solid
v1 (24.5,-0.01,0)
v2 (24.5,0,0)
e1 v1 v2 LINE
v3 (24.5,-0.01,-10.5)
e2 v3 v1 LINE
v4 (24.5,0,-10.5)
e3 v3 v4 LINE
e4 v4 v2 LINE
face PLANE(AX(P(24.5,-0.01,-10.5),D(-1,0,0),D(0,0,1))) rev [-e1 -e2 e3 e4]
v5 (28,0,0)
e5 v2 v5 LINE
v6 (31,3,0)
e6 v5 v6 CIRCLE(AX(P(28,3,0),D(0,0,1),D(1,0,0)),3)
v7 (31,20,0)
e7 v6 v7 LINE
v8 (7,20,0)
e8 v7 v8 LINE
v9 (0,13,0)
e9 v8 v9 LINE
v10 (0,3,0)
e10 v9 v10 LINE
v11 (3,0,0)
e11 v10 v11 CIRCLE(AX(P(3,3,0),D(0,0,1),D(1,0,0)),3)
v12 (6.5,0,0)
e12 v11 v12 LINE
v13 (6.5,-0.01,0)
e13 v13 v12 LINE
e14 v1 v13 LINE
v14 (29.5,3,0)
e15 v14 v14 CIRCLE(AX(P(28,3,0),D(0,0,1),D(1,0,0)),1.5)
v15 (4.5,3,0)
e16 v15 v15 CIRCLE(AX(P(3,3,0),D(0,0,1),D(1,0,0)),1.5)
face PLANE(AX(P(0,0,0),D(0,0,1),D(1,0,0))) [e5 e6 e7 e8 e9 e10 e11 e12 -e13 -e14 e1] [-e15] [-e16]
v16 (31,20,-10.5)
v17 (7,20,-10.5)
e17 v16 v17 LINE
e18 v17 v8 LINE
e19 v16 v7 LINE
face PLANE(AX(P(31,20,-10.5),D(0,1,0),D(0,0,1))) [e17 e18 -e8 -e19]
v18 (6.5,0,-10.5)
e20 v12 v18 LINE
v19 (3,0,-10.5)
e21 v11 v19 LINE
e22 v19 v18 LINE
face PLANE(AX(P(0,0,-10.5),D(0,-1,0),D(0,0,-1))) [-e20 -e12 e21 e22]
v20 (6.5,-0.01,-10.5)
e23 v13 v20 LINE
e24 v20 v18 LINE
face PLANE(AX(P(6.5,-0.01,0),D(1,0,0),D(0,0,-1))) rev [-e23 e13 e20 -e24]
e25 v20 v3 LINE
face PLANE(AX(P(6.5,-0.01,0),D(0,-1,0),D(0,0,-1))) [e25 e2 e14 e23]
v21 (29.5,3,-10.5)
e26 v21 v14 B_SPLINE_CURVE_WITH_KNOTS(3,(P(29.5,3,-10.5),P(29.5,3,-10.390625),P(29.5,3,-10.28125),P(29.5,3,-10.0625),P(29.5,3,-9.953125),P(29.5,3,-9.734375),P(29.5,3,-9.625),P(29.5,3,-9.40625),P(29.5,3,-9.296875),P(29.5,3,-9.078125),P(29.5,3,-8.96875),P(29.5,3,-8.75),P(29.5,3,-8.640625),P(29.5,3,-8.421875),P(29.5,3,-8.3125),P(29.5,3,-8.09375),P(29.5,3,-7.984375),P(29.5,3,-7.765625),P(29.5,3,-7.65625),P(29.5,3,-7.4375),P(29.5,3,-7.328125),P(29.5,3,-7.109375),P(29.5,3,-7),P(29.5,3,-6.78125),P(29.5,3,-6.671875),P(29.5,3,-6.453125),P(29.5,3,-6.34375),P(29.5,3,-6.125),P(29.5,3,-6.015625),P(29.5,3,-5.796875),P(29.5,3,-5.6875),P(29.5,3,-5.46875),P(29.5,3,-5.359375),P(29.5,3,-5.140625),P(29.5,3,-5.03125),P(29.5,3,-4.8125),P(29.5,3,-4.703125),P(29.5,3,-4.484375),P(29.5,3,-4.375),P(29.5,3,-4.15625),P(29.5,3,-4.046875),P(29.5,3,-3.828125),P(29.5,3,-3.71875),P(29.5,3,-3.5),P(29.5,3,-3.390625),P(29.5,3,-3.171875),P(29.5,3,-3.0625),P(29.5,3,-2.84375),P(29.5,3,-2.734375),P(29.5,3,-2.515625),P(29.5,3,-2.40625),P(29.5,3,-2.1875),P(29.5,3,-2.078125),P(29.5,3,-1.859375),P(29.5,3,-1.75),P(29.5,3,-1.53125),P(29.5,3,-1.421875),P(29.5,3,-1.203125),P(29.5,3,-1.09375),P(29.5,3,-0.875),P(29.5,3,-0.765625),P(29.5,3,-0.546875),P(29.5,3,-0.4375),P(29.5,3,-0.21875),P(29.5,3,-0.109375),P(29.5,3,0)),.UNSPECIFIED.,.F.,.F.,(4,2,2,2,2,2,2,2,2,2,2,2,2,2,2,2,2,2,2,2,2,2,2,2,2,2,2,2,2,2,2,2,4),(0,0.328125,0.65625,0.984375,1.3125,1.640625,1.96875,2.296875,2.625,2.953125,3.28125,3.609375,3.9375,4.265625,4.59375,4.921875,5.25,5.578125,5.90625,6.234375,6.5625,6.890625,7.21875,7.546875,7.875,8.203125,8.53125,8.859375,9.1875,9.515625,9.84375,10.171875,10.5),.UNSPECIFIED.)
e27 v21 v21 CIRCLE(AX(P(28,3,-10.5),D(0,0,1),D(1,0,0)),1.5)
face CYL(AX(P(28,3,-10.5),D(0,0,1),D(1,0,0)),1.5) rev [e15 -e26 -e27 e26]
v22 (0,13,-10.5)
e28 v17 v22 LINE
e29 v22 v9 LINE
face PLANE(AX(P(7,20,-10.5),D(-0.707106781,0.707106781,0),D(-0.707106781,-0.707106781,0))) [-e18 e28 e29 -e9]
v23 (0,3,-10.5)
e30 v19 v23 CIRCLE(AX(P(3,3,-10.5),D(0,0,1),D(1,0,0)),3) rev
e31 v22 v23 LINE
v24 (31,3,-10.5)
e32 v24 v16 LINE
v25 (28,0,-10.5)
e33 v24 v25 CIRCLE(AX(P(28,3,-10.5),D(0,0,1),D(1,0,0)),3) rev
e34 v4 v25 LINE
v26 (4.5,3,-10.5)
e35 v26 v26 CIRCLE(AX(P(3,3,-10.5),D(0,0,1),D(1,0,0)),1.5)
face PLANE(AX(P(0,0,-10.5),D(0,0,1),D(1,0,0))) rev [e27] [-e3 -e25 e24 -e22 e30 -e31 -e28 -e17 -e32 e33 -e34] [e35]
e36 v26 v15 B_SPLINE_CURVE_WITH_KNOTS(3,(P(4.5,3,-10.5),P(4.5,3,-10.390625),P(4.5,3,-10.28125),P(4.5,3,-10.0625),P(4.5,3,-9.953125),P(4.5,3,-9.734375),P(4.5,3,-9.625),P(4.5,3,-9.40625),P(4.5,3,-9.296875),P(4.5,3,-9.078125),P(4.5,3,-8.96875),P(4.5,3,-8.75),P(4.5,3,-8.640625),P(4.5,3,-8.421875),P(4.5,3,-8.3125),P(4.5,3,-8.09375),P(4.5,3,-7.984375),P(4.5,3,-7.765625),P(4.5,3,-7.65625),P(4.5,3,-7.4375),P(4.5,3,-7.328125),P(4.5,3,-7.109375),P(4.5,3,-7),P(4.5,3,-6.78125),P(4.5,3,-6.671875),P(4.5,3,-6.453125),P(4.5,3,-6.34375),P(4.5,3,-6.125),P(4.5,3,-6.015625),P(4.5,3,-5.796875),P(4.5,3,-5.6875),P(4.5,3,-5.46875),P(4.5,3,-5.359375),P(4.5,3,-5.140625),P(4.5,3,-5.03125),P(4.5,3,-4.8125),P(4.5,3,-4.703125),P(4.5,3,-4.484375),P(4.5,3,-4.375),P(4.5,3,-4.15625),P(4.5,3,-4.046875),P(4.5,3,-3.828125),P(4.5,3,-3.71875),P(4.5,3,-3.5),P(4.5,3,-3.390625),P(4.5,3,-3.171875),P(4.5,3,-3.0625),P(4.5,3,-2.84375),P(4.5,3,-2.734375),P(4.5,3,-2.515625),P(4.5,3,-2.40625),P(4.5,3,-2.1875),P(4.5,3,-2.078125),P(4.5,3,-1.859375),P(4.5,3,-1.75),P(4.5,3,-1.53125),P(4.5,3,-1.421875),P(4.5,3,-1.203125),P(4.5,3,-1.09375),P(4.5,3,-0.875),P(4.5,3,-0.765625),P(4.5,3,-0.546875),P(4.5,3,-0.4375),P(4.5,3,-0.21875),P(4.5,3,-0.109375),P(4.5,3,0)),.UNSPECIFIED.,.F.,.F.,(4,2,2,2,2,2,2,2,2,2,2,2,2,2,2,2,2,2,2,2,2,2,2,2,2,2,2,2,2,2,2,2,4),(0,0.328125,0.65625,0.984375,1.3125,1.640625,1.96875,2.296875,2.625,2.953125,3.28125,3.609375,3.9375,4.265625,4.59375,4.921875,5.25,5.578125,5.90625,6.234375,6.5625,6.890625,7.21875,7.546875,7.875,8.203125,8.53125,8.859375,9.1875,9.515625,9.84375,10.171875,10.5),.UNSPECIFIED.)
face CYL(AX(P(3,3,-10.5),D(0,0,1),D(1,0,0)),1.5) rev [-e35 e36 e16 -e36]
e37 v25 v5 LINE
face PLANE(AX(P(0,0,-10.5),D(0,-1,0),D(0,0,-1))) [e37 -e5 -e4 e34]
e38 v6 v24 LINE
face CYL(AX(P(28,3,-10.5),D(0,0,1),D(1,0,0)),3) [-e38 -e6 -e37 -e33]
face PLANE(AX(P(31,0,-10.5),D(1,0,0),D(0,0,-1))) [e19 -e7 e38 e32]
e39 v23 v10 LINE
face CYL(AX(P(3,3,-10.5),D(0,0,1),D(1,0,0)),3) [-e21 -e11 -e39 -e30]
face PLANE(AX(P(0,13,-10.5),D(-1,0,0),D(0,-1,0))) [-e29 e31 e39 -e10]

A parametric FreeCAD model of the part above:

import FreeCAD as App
import Part
import Sketcher


def edges_at(feature, points):
    """Names of the edges that pass closest to the given points."""
    edges = feature.Shape.Edges
    near = lambda p: min(range(len(edges)), key=lambda i: edges[i].distToShape(Part.Vertex(*p))[0])
    return sorted({f"Edge{near(p) + 1}" for p in points})

doc = App.newDocument("Part")
body = doc.addObject("PartDesign::Body", "Body")

# Sketch on XY plane
sketch1 = doc.addObject("Sketcher::SketchObject", "Sketch")
body.addObject(sketch1)
sketch1.AttachmentSupport = (doc.XY_Plane, [""])
sketch1.MapMode = "FlatFace"
sketch1.addGeometry([
    Part.LineSegment(App.Vector(0, 0, 0), App.Vector(31, 0, 0)),  # 0
    Part.LineSegment(App.Vector(31, 0, 0), App.Vector(31, 20, 0)),  # 1
    Part.LineSegment(App.Vector(31, 20, 0), App.Vector(7, 20, 0)),  # 2
    Part.LineSegment(App.Vector(7, 20, 0), App.Vector(0, 13, 0)),  # 3
    Part.LineSegment(App.Vector(0, 13, 0), App.Vector(0, 0, 0)),  # 4
], False)
sketch1.addConstraint([
    Sketcher.Constraint("Coincident", 0, 2, 1, 1),
    Sketcher.Constraint("Coincident", 1, 2, 2, 1),
    Sketcher.Constraint("Coincident", 2, 2, 3, 1),
    Sketcher.Constraint("Coincident", 3, 2, 4, 1),
    Sketcher.Constraint("Coincident", 4, 2, 0, 1),
    Sketcher.Constraint("Horizontal", 0),
    Sketcher.Constraint("Vertical", 1),
    Sketcher.Constraint("Horizontal", 2),
    Sketcher.Constraint("Vertical", 4),
    Sketcher.Constraint("Coincident", 4, 2, -1, 1),
    Sketcher.Constraint("DistanceX", 0, 1, 0, 2, 31.0),
    Sketcher.Constraint("DistanceX", 2, 2, 2, 1, 24.0),
    Sketcher.Constraint("DistanceY", 1, 1, 1, 2, 20.0),
    Sketcher.Constraint("DistanceY", 4, 2, 4, 1, 13.0),
])
pad1 = doc.addObject("PartDesign::Pad", "Pad")
body.addObject(pad1)
pad1.Profile = sketch1
pad1.Length = 10.5
pad1.Reversed = True

# Sketch on XY plane
sketch2 = doc.addObject("Sketcher::SketchObject", "Sketch001")
body.addObject(sketch2)
sketch2.AttachmentSupport = (doc.XY_Plane, [""])
sketch2.MapMode = "FlatFace"
sketch2.addGeometry([
    Part.Circle(App.Vector(3, 3, 0), App.Vector(0, 0, 1), 1.5),
    Part.Circle(App.Vector(28, 3, 0), App.Vector(0, 0, 1), 1.5),
], False)
sketch2.addConstraint([
    Sketcher.Constraint("Equal", 0, 1),
    Sketcher.Constraint("Horizontal", 0, 3, 1, 3),
    Sketcher.Constraint("Diameter", 0, 3.0),
    Sketcher.Constraint("DistanceX", -1, 1, 0, 3, 3.0),
    Sketcher.Constraint("DistanceY", -1, 1, 0, 3, 3.0),
    Sketcher.Constraint("DistanceX", -1, 1, 1, 3, 28.0),
])
pocket1 = doc.addObject("PartDesign::Pocket", "Pocket")
body.addObject(pocket1)
pocket1.Profile = sketch2
pocket1.Type = "ThroughAll"
doc.recompute()

fillet = doc.addObject("PartDesign::Fillet", "Fillet")
body.addObject(fillet)
fillet.Base = (pocket1, edges_at(pocket1, [(31, 0, -5.25), (0, 0, -5.25)]))
fillet.Radius = 3

# Sketch on XZ plane
sketch3 = doc.addObject("Sketcher::SketchObject", "Sketch002")
body.addObject(sketch3)
sketch3.AttachmentSupport = (doc.XZ_Plane, [""])
sketch3.MapMode = "FlatFace"
sketch3.addGeometry([
    Part.LineSegment(App.Vector(6, 0, 0), App.Vector(6, -10, 0)),
    Part.LineSegment(App.Vector(6, -10, 0), App.Vector(24, -10, 0)),
    Part.LineSegment(App.Vector(24, -10, 0), App.Vector(24, 0, 0)),
    Part.LineSegment(App.Vector(24, 0, 0), App.Vector(6, 0, 0)),
], False)
sketch3.addConstraint([
    Sketcher.Constraint("Coincident", 0, 2, 1, 1),
    Sketcher.Constraint("Coincident", 1, 2, 2, 1),
    Sketcher.Constraint("Coincident", 2, 2, 3, 1),
    Sketcher.Constraint("Coincident", 3, 2, 0, 1),
    Sketcher.Constraint("Vertical", 0),
    Sketcher.Constraint("Horizontal", 1),
    Sketcher.Constraint("Vertical", 2),
    Sketcher.Constraint("Horizontal", 3),
    Sketcher.Constraint("PointOnObject", 2, 2, -1),
    Sketcher.Constraint("DistanceX", 1, 1, 1, 2, 18.0),
    Sketcher.Constraint("DistanceY", 0, 2, 0, 1, 10.5),
    Sketcher.Constraint("DistanceX", -1, 1, 0, 2, 6.5),
])
pad2 = doc.addObject("PartDesign::Pad", "Pad001")
body.addObject(pad2)
pad2.Profile = sketch3
pad2.Length = 0.01

doc.recompute()
